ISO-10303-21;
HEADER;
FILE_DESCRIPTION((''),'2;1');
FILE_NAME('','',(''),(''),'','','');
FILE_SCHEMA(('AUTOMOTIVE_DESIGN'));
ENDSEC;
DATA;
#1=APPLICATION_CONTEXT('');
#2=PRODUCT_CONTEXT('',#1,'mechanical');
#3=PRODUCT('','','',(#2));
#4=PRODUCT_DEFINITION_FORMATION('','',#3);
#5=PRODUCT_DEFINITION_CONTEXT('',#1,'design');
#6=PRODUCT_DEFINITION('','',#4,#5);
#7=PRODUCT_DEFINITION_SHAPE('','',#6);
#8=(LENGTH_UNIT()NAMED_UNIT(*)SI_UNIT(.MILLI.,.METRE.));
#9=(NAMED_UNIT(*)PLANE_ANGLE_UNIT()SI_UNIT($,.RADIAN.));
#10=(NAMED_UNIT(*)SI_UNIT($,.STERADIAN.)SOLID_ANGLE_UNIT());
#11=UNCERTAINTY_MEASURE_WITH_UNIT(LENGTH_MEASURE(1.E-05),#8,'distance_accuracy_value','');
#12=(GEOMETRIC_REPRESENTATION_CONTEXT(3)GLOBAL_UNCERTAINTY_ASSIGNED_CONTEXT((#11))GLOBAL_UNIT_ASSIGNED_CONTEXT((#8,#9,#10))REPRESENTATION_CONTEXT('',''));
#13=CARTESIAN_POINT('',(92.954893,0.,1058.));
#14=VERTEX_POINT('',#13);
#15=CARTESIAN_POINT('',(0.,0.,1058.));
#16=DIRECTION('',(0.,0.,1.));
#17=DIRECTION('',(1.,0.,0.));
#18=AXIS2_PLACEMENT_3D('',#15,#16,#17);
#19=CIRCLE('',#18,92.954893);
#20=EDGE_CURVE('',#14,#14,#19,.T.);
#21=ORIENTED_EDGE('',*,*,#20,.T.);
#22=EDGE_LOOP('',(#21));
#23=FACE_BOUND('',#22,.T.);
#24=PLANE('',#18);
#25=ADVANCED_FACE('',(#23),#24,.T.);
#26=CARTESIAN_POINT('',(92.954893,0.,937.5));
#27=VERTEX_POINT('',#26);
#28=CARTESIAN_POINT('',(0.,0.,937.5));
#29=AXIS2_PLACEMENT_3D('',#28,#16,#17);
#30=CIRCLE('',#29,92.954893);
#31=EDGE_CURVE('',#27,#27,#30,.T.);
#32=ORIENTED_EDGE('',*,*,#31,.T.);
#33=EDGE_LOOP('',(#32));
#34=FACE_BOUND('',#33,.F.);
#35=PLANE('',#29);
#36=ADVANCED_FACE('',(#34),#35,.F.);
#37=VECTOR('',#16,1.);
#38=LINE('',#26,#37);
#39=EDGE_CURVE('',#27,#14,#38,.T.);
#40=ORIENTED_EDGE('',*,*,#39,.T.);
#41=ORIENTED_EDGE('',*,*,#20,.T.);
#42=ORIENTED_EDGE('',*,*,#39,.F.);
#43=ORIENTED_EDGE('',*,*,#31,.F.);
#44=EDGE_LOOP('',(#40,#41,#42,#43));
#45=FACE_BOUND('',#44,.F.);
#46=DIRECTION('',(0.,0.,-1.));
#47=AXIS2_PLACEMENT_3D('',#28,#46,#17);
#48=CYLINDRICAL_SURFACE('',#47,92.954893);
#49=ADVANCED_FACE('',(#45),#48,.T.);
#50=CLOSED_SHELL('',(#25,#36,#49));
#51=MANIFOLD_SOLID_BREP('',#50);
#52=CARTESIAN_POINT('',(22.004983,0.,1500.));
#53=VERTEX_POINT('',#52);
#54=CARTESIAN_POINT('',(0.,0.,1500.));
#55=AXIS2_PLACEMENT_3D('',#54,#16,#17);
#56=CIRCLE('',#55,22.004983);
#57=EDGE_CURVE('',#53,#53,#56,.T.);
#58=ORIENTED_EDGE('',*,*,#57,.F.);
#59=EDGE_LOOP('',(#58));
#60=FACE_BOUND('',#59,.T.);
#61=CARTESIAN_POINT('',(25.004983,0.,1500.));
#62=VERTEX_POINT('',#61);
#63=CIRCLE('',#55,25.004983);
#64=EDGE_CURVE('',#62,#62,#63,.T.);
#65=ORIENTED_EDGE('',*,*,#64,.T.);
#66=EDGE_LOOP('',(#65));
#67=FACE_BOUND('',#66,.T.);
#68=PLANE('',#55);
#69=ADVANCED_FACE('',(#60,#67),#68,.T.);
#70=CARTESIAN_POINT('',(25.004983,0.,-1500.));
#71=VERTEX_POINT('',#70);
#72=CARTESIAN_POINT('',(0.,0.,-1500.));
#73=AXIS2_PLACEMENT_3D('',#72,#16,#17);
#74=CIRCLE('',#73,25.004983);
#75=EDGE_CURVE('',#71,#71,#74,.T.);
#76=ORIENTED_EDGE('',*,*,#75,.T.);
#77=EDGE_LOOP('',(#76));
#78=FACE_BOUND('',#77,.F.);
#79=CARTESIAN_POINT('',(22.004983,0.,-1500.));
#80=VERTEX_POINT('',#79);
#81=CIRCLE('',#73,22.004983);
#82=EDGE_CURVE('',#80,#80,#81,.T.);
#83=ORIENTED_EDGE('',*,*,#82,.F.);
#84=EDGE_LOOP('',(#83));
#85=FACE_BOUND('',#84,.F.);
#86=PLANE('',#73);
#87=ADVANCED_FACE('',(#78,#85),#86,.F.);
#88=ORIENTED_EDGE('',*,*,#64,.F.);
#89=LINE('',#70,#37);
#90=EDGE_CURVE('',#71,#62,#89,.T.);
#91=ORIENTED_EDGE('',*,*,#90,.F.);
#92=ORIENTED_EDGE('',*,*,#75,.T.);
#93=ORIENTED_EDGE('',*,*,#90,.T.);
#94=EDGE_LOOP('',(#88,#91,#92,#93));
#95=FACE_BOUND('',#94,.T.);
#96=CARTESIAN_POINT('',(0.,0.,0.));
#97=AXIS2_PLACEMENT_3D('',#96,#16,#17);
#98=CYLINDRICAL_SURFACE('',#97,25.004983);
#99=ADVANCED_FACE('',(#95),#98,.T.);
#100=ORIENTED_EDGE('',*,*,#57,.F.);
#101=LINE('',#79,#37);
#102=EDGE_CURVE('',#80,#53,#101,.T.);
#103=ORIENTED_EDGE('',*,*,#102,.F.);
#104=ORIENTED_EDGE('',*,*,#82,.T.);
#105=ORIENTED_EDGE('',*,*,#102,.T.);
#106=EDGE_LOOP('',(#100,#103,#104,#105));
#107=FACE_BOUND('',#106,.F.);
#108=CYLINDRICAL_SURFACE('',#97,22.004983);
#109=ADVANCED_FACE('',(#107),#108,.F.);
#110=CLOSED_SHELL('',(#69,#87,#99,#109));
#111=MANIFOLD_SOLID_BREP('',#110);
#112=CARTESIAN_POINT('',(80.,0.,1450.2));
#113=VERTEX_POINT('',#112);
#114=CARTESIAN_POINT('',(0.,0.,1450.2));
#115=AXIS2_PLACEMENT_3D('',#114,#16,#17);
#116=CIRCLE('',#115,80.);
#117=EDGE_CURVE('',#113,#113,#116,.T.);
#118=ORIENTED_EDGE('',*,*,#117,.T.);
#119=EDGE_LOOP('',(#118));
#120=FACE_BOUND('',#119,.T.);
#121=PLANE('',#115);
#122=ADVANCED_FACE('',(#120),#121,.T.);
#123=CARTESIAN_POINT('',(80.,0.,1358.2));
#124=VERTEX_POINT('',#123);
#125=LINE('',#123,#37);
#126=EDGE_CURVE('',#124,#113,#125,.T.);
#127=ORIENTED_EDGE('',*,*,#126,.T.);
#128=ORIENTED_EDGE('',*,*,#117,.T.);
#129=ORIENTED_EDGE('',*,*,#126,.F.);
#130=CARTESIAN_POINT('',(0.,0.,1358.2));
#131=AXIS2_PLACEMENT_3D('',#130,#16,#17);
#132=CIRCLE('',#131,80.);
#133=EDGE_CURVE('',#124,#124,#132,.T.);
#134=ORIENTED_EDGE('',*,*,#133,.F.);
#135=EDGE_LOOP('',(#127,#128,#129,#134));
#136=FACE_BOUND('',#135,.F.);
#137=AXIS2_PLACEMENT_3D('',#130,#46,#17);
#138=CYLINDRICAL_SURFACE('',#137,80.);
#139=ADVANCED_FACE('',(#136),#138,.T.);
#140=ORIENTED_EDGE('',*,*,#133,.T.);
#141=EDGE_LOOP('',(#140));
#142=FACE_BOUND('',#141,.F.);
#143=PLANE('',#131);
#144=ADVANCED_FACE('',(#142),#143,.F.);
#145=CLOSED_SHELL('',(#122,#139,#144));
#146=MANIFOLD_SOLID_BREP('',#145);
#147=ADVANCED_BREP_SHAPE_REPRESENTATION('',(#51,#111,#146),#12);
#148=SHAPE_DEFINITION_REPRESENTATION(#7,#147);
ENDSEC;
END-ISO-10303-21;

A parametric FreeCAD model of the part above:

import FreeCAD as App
import Part
import Sketcher


def faces_at(feature, points):
    """Names of the faces that lie closest to the given points."""
    faces = feature.Shape.Faces
    near = lambda p: min(range(len(faces)), key=lambda i: faces[i].distToShape(Part.Vertex(*p))[0])
    return sorted({f"Face{near(p) + 1}" for p in points})

doc = App.newDocument("Part")
body = doc.addObject("PartDesign::Body", "Body")

sketch1 = body.newObject("Sketcher::SketchObject", "Sketch")
sketch1.AttachmentSupport = (doc.getObject("XY_Plane"), [""])
sketch1.MapMode = "FlatFace"
sketch1.addGeometry(Part.Circle(App.Vector(0, 0, 0), App.Vector(0, 0, 1), 25.004983), False)
sketch1.addConstraint(Sketcher.Constraint("Coincident", 0, 3, -1, 1))
sketch1.addConstraint(Sketcher.Constraint("Diameter", 0, 50.009966))
pad1 = body.newObject("PartDesign::Pad", "Pad")
pad1.Profile = sketch1
pad1.Length = 3000
pad1.Midplane = True
doc.recompute()

thickness = body.newObject("PartDesign::Thickness", "Thickness")
thickness.Base = (pad1, faces_at(pad1, [(0, 0, 1500), (0, 0, -1500)]))
thickness.Value = 3
thickness.Reversed = True
thickness.Join = "Arc"
body2 = doc.addObject("PartDesign::Body", "Body001")

sketch2 = body2.newObject("Sketcher::SketchObject", "Sketch001")
sketch2.AttachmentSupport = (doc.getObject("XY_Plane001"), [""])
sketch2.MapMode = "FlatFace"
sketch2.AttachmentOffset = App.Placement(App.Vector(0, 0, 937.5), App.Rotation())
sketch2.addGeometry(Part.Circle(App.Vector(0, 0, 0), App.Vector(0, 0, 1), 92.954893), False)
sketch2.addConstraint(Sketcher.Constraint("Coincident", 0, 3, -1, 1))
sketch2.addConstraint(Sketcher.Constraint("Diameter", 0, 185.909786))
pad2 = body2.newObject("PartDesign::Pad", "Pad001")
pad2.Profile = sketch2
pad2.Length = 120.5
body3 = doc.addObject("PartDesign::Body", "Body002")

sketch3 = body3.newObject("Sketcher::SketchObject", "Sketch002")
sketch3.AttachmentSupport = (doc.getObject("XY_Plane002"), [""])
sketch3.MapMode = "FlatFace"
sketch3.AttachmentOffset = App.Placement(App.Vector(0, 0, 1358.2), App.Rotation())
sketch3.addGeometry(Part.Circle(App.Vector(0, 0, 0), App.Vector(0, 0, 1), 80), False)
sketch3.addConstraint(Sketcher.Constraint("Coincident", 0, 3, -1, 1))
sketch3.addConstraint(Sketcher.Constraint("Diameter", 0, 160.0))
pad3 = body3.newObject("PartDesign::Pad", "Pad002")
pad3.Profile = sketch3
pad3.Length = 92

doc.recompute()
